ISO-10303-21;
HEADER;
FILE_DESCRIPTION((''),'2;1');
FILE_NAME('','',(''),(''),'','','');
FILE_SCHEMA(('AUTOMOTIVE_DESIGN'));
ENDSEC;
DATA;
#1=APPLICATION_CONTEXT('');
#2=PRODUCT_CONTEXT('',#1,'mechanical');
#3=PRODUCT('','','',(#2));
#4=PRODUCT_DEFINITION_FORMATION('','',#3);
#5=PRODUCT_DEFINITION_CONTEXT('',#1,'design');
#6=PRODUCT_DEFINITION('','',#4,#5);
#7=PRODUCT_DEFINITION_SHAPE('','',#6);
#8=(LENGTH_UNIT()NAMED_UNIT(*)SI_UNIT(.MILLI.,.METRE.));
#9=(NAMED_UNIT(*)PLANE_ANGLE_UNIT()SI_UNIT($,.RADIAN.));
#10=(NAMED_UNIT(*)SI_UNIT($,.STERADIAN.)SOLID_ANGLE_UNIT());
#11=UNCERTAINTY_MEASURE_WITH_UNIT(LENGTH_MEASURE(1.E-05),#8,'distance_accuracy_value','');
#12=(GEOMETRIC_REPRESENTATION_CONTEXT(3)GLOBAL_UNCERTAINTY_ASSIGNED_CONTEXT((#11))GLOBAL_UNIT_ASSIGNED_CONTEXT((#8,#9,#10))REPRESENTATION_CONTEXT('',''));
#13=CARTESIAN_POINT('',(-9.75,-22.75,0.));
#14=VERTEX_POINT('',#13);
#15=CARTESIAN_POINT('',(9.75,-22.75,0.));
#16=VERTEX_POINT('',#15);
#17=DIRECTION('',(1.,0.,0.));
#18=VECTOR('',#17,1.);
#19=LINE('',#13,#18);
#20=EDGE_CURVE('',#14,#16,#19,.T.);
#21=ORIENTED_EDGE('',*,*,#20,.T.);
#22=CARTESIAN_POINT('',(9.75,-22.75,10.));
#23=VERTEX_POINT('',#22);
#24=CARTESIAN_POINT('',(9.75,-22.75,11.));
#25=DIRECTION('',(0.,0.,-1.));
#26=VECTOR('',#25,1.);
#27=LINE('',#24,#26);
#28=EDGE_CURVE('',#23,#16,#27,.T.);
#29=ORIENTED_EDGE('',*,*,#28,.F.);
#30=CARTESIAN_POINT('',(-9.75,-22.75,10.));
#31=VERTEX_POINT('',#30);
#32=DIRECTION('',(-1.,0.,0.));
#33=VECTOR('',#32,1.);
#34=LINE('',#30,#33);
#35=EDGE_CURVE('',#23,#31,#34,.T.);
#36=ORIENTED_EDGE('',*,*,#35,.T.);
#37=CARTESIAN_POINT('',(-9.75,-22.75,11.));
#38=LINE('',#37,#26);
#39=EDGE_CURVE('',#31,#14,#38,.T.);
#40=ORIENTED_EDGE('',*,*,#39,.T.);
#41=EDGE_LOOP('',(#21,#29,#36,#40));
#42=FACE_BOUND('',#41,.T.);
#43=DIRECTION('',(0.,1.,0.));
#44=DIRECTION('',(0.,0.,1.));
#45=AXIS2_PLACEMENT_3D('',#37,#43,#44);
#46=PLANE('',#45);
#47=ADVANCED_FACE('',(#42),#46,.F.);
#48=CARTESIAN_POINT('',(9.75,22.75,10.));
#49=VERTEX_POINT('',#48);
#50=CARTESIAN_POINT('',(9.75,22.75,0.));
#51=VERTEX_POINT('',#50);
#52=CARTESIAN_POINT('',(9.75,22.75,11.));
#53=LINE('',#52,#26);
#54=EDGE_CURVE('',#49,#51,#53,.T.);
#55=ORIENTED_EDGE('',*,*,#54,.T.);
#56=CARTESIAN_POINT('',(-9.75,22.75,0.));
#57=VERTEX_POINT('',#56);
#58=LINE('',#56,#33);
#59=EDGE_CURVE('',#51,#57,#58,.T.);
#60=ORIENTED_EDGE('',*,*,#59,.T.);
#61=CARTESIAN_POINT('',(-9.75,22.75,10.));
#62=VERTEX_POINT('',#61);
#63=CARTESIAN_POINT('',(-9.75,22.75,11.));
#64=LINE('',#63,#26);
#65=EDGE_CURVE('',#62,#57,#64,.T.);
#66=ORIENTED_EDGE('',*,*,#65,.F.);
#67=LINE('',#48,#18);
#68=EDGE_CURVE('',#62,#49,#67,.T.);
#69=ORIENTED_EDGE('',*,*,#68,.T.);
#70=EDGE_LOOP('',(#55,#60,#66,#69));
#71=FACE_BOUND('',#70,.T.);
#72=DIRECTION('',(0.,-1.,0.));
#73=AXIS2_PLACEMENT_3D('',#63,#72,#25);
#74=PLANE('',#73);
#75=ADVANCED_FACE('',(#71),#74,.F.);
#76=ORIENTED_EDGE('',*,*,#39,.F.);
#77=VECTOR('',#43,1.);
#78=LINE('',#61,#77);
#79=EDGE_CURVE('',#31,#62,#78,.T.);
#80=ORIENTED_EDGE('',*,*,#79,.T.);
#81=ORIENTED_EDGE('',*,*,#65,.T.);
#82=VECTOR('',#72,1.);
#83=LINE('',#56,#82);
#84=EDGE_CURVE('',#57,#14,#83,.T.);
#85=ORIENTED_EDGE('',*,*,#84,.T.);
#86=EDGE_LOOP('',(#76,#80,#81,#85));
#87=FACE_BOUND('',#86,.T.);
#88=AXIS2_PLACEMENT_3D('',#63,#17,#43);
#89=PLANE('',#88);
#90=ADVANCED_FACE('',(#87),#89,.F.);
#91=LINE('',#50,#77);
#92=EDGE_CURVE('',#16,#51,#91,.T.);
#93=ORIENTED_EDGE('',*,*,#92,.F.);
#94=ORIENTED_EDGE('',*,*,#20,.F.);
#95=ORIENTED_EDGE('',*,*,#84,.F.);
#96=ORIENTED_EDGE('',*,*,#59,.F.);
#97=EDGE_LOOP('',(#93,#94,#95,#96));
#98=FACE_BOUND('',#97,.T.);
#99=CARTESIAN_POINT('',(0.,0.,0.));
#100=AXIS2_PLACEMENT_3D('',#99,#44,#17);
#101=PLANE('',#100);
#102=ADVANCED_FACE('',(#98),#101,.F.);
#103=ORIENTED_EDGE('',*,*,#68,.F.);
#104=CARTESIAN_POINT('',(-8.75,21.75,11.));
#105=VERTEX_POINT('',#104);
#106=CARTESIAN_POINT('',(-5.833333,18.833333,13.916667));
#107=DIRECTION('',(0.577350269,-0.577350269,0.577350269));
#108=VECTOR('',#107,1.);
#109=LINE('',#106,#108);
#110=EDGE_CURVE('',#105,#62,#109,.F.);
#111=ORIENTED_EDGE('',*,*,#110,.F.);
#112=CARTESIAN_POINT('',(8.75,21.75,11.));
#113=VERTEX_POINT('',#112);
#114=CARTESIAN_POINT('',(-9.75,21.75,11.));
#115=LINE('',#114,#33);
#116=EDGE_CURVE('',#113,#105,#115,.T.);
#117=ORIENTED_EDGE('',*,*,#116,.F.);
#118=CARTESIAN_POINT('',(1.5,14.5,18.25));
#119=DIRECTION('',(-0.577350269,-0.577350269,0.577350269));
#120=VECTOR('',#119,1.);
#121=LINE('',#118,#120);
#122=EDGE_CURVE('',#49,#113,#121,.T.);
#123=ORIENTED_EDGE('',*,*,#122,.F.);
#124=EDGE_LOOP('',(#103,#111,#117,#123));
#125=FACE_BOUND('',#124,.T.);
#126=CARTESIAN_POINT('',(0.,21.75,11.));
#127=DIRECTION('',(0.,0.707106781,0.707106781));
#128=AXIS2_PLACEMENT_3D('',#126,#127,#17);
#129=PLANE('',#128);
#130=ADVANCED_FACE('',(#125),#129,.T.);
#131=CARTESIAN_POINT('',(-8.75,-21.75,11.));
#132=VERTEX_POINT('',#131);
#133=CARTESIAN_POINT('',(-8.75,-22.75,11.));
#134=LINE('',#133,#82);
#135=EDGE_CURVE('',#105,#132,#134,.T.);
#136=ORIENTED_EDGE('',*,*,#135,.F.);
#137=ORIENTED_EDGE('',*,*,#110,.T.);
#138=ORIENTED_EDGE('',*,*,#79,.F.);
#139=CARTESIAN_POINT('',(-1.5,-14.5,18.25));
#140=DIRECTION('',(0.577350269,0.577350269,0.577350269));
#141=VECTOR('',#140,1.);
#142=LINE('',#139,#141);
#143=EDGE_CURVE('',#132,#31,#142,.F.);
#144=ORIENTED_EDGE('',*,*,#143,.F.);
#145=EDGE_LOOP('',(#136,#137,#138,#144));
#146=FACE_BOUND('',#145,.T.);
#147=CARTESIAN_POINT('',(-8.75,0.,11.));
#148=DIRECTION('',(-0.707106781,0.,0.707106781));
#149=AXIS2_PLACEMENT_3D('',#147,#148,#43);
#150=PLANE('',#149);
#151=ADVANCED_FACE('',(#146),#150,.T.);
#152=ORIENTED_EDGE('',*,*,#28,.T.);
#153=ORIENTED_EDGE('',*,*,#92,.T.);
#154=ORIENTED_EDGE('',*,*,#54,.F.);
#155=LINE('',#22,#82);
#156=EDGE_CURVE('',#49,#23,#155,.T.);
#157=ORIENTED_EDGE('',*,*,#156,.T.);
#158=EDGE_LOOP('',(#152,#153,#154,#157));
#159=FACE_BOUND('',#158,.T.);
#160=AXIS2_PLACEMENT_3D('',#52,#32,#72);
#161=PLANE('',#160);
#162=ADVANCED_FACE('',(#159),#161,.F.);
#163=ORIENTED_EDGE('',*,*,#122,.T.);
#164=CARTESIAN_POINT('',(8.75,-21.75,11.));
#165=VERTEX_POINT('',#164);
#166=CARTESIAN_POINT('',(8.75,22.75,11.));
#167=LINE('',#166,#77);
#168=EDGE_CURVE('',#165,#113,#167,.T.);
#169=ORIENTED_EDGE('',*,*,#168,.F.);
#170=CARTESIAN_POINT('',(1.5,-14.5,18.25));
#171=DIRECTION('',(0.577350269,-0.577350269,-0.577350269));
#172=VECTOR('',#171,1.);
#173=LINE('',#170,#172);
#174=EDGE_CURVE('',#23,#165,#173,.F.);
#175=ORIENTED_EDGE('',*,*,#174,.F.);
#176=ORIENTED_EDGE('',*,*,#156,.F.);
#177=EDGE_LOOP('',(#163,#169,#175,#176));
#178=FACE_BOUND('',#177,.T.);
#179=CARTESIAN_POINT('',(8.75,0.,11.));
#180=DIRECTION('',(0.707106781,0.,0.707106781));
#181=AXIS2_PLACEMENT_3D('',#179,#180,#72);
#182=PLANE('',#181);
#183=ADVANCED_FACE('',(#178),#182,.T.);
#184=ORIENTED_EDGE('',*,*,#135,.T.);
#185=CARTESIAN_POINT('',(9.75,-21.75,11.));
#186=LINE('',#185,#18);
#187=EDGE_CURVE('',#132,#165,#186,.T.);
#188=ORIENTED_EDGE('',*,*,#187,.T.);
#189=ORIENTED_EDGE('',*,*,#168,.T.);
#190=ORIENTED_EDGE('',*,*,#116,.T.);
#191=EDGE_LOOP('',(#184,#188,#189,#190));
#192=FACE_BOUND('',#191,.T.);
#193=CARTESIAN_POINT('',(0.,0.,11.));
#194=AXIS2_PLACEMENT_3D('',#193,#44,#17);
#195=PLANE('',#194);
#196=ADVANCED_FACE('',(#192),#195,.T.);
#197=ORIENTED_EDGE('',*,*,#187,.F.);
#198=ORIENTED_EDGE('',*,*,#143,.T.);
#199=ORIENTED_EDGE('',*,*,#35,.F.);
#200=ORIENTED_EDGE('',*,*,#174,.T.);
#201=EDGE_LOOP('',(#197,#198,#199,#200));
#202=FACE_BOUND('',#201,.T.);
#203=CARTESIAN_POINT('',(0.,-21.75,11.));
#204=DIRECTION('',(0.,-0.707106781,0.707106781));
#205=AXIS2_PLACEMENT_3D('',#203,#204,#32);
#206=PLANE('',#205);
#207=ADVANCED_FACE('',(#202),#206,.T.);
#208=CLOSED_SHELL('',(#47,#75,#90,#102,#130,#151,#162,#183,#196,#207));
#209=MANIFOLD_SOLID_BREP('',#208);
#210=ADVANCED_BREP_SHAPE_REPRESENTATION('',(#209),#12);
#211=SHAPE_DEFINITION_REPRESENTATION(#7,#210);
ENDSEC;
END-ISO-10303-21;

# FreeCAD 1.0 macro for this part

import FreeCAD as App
import Part
import Sketcher
from FreeCAD import Vector


def edges_at(feature, points):
    """Names of the edges that pass closest to the given points."""
    edges = feature.Shape.Edges
    near = lambda p: min(range(len(edges)), key=lambda i: edges[i].distToShape(Part.Vertex(*p))[0])
    return sorted({f"Edge{near(p) + 1}" for p in points})

doc = App.newDocument("Part")
params = doc.addObject("Spreadsheet::Sheet", "Params")
for row, (alias, value) in enumerate([
    ("sketch1_width", "19.5 mm"),
    ("sketch1_height", "45.5 mm"),
    ("pad1_length", "11 mm"),
    ("chamfer_size", "1 mm"),
], start=1):
    params.set(f"A{row}", alias)
    params.set(f"B{row}", "=" + value)
    params.setAlias(f"B{row}", alias)

body = doc.addObject("PartDesign::Body", "Body")

# Sketch on XY plane
sketch1 = body.newObject("Sketcher::SketchObject", "Sketch")
sketch1.AttachmentSupport = (doc.getObject("XY_Plane"), [""])
sketch1.MapMode = "FlatFace"
sketch1.addGeometry([
    Part.LineSegment(Vector(-10, 23, 0), Vector(-10, -23, 0)),
    Part.LineSegment(Vector(-10, -23, 0), Vector(10, -23, 0)),
    Part.LineSegment(Vector(10, -23, 0), Vector(10, 23, 0)),
    Part.LineSegment(Vector(10, 23, 0), Vector(-10, 23, 0)),
], False)
sketch1.addConstraint([
    Sketcher.Constraint("Coincident", 0, 2, 1, 1),
    Sketcher.Constraint("Coincident", 1, 2, 2, 1),
    Sketcher.Constraint("Coincident", 2, 2, 3, 1),
    Sketcher.Constraint("Coincident", 3, 2, 0, 1),
    Sketcher.Constraint("Vertical", 0),
    Sketcher.Constraint("Horizontal", 1),
    Sketcher.Constraint("Vertical", 2),
    Sketcher.Constraint("Horizontal", 3),
    Sketcher.Constraint("Symmetric", 0, 2, 2, 2, -1, 1),
    Sketcher.Constraint("DistanceX", 1, 1, 1, 2, 19.5),
    Sketcher.Constraint("DistanceY", 0, 2, 0, 1, 45.5),
])
sketch1.setExpression("Constraints[9]", "Params.sketch1_width")
sketch1.setExpression("Constraints[10]", "Params.sketch1_height")
pad1 = body.newObject("PartDesign::Pad", "Pad")
pad1.Profile = sketch1
pad1.setExpression("Length", "Params.pad1_length")
doc.recompute()

chamfer = body.newObject("PartDesign::Chamfer", "Chamfer")
chamfer.Base = (pad1, edges_at(pad1, [
    (-9.75, 0, 11),
    (0, -22.75, 11),
    (9.75, 0, 11),
    (0, 22.75, 11),
]))
chamfer.setExpression("Size", "Params.chamfer_size")

doc.recompute()
